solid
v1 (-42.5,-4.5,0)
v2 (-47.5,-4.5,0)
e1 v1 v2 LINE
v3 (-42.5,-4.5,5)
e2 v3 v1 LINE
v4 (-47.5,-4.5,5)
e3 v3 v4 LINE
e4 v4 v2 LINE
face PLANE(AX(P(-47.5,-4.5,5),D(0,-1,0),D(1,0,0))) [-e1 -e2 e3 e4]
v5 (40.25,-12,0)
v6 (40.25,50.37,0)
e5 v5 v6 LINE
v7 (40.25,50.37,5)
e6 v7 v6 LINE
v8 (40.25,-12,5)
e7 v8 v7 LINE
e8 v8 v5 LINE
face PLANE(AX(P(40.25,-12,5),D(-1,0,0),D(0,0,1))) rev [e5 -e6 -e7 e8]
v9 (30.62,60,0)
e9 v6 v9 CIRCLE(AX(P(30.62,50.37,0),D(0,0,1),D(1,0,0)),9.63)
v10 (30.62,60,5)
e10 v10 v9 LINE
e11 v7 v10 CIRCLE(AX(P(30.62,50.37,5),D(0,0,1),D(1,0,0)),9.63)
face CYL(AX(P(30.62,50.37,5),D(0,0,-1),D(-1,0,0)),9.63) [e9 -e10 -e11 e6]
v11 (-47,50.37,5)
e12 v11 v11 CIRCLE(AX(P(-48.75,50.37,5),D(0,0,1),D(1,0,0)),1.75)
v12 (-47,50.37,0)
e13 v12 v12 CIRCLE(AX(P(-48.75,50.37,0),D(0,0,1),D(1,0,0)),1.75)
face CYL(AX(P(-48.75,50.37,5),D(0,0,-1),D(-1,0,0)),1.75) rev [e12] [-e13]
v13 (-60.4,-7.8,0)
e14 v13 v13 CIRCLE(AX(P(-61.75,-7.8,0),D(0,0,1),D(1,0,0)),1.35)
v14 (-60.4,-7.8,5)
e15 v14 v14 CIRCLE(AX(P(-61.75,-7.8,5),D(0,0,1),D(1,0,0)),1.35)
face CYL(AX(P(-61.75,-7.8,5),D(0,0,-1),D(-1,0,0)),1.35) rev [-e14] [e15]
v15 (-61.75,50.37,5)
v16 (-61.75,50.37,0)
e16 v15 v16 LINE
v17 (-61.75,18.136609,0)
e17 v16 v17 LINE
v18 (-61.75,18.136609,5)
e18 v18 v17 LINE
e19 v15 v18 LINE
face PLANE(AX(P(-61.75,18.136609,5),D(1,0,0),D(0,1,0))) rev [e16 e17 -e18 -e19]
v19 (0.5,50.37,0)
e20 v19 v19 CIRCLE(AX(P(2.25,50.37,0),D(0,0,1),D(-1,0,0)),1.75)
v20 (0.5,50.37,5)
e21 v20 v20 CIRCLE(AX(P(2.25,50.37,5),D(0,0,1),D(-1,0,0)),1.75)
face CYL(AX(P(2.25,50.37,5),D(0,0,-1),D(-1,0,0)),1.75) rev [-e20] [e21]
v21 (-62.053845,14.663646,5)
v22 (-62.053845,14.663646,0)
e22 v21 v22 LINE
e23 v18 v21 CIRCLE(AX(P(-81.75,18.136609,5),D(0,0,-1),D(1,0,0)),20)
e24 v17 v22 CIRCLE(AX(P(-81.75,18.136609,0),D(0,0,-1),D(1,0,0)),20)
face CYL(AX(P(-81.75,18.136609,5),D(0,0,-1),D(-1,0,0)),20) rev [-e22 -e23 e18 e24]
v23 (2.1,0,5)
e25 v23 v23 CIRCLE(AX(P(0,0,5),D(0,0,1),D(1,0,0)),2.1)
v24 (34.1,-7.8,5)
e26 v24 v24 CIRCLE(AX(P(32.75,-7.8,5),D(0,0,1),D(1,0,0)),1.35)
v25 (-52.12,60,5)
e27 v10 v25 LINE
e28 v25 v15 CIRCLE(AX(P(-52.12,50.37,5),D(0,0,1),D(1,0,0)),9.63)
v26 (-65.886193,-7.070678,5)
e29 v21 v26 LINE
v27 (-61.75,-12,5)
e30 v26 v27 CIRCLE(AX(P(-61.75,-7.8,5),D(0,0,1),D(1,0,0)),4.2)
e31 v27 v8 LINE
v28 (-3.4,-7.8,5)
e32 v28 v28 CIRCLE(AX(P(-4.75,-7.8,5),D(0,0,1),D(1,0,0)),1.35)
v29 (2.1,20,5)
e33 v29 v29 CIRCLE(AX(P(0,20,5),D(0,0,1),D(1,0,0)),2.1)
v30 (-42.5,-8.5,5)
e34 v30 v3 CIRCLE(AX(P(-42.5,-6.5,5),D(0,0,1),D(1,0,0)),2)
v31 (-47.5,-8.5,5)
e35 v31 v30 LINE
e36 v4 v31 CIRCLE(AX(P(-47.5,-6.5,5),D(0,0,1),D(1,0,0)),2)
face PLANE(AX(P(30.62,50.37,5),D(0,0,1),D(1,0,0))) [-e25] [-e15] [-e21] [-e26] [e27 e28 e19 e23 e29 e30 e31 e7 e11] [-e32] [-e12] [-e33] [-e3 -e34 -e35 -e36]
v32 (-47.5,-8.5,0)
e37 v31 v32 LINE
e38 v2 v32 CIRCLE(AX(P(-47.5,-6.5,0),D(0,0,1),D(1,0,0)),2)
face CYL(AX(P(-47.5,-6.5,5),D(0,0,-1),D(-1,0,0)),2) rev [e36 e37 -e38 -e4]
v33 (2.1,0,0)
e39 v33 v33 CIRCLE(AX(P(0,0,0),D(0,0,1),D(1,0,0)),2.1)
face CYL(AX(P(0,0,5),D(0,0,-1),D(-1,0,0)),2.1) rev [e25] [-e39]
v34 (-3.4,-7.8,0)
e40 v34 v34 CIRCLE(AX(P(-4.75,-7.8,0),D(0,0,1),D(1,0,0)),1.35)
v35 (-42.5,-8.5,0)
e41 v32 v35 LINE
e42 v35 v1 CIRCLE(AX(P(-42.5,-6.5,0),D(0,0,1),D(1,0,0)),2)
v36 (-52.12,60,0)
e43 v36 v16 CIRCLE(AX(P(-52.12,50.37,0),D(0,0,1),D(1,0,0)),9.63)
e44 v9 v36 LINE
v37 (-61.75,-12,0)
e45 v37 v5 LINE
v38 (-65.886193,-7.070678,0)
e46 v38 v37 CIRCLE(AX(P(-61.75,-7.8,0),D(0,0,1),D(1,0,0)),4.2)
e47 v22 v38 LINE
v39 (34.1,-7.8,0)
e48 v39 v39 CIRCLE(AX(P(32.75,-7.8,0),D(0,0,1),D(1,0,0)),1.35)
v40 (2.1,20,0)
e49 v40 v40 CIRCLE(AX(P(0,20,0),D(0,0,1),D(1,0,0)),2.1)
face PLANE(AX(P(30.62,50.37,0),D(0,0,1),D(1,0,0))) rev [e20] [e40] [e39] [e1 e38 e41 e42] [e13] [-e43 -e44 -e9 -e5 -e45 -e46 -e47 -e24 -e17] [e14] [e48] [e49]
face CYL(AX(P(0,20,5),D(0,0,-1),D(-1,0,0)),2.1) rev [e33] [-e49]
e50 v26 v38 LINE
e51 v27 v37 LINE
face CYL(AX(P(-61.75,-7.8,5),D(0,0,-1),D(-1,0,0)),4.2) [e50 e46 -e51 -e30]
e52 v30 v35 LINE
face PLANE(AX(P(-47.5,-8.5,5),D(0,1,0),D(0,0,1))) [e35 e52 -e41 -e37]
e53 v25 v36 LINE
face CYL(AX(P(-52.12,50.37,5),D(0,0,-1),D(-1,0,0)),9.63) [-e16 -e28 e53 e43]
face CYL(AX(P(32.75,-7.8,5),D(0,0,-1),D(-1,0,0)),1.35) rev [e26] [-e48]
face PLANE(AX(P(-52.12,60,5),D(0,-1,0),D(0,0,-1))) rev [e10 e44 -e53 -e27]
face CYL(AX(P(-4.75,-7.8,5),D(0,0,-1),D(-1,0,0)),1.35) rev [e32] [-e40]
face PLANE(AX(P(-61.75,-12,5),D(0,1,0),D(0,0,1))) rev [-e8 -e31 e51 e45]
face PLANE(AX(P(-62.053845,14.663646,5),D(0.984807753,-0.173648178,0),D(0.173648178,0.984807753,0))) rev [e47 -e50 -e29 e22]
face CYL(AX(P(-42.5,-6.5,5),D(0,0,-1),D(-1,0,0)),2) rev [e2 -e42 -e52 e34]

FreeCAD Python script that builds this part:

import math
import FreeCAD as App
import Part
import Sketcher

V = App.Vector
Q = App.Units.Quantity

doc = App.newDocument("Part")
body = doc.addObject("PartDesign::Body", "Body")

# Sketch on XY plane
sketch1 = doc.addObject("Sketcher::SketchObject", "Sketch")
body.addObject(sketch1)
sketch1.AttachmentSupport = (doc.XY_Plane, [""])
sketch1.MapMode = "FlatFace"
sketch1.addGeometry(Part.LineSegment(V(-62.1, 14.7, 0), V(-65.9, -7.1, 0)), False)
sketch1.addGeometry(Part.ArcOfCircle(Part.Circle(V(-61.8, -7.8, 0), V(0, 0, 1), 4.2), math.radians(170), math.radians(270)), False)
sketch1.addGeometry(Part.LineSegment(V(-61.8, -12, 0), V(40.2, -12, 0)), False)
sketch1.addGeometry(Part.LineSegment(V(40.2, -12, 0), V(40.2, 50.4, 0)), False)
sketch1.addGeometry(Part.ArcOfCircle(Part.Circle(V(30.6, 50.4, 0), V(0, 0, 1), 9.6), math.radians(0), math.radians(90)), False)
sketch1.addGeometry(Part.LineSegment(V(30.6, 60, 0), V(-52.1, 60, 0)), False)
sketch1.addGeometry(Part.ArcOfCircle(Part.Circle(V(-52.1, 50.4, 0), V(0, 0, 1), 9.6), math.radians(90), math.radians(180)), False)
sketch1.addGeometry(Part.LineSegment(V(-61.8, 50.4, 0), V(-61.8, 18.1, 0)), False)
sketch1.addGeometry(Part.ArcOfCircle(Part.Circle(V(-81.7, 18.1, 0), V(0, 0, 1), 20), math.radians(-10), math.radians(0)), False)
sketch1.addGeometry(Part.Circle(V(-61.8, -7.8, 0), V(0, 0, 1), 1.4), False)
sketch1.addGeometry(Part.ArcOfCircle(Part.Circle(V(-47.5, -6.5, 0), V(0, 0, 1), 2), math.radians(90), math.radians(270)), False)
sketch1.addGeometry(Part.LineSegment(V(-47.5, -4.5, 0), V(-42.5, -4.5, 0)), False)
sketch1.addGeometry(Part.ArcOfCircle(Part.Circle(V(-42.5, -6.5, 0), V(0, 0, 1), 2), math.radians(-90), math.radians(90)), False)
sketch1.addGeometry(Part.LineSegment(V(-42.5, -8.5, 0), V(-47.5, -8.5, 0)), False)
sketch1.addGeometry(Part.Circle(V(-4.8, -7.8, 0), V(0, 0, 1), 1.4), False)
sketch1.addGeometry(Part.Circle(V(0, 0, 0), V(0, 0, 1), 2.1), False)
sketch1.addGeometry(Part.Circle(V(32.8, -7.8, 0), V(0, 0, 1), 1.4), False)
sketch1.addGeometry(Part.Circle(V(0, 20, 0), V(0, 0, 1), 2.1), False)
sketch1.addGeometry(Part.Circle(V(-48.8, 50.4, 0), V(0, 0, 1), 1.8), False)
sketch1.addGeometry(Part.Circle(V(2.2, 50.4, 0), V(0, 0, 1), 1.8), False)
sketch1.addConstraint(Sketcher.Constraint("Tangent", 0, 2, 1, 1))
sketch1.addConstraint(Sketcher.Constraint("Tangent", 1, 2, 2, 1))
sketch1.addConstraint(Sketcher.Constraint("Coincident", 2, 2, 3, 1))
sketch1.addConstraint(Sketcher.Constraint("Tangent", 3, 2, 4, 1))
sketch1.addConstraint(Sketcher.Constraint("Tangent", 4, 2, 5, 1))
sketch1.addConstraint(Sketcher.Constraint("Tangent", 5, 2, 6, 1))
sketch1.addConstraint(Sketcher.Constraint("Tangent", 6, 2, 7, 1))
sketch1.addConstraint(Sketcher.Constraint("Tangent", 7, 2, 8, 2))
sketch1.addConstraint(Sketcher.Constraint("Tangent", 8, 1, 0, 1))
sketch1.addConstraint(Sketcher.Constraint("Tangent", 10, 1, 11, 1))
sketch1.addConstraint(Sketcher.Constraint("Tangent", 11, 2, 12, 2))
sketch1.addConstraint(Sketcher.Constraint("Tangent", 12, 1, 13, 1))
sketch1.addConstraint(Sketcher.Constraint("Tangent", 13, 2, 10, 2))
sketch1.addConstraint(Sketcher.Constraint("Horizontal", 2))
sketch1.addConstraint(Sketcher.Constraint("Vertical", 3))
sketch1.addConstraint(Sketcher.Constraint("Horizontal", 5))
sketch1.addConstraint(Sketcher.Constraint("Vertical", 7))
sketch1.addConstraint(Sketcher.Constraint("Horizontal", 11))
sketch1.addConstraint(Sketcher.Constraint("Horizontal", 13))
sketch1.addConstraint(Sketcher.Constraint("Coincident", 15, 3, -1, 1))
sketch1.addConstraint(Sketcher.Constraint("Coincident", 9, 3, 1, 3))
sketch1.addConstraint(Sketcher.Constraint("Equal", 4, 6))
sketch1.addConstraint(Sketcher.Constraint("Equal", 9, 14))
sketch1.addConstraint(Sketcher.Constraint("Equal", 14, 16))
sketch1.addConstraint(Sketcher.Constraint("Equal", 15, 17))
sketch1.addConstraint(Sketcher.Constraint("Equal", 18, 19))
sketch1.addConstraint(Sketcher.Constraint("PointOnObject", 17, 3, -2))
sketch1.addConstraint(Sketcher.Constraint("Horizontal", 9, 3, 14, 3))
sketch1.addConstraint(Sketcher.Constraint("Horizontal", 14, 3, 16, 3))
sketch1.addConstraint(Sketcher.Constraint("Horizontal", 6, 3, 18, 3))
sketch1.addConstraint(Sketcher.Constraint("Horizontal", 18, 3, 19, 3))
sketch1.addConstraint(Sketcher.Constraint("Vertical", 1, 2, 6, 2))
sketch1.addConstraint(Sketcher.Constraint("Radius", 8, 20.0))
sketch1.addConstraint(Sketcher.Constraint("Radius", 10, 2.0))
sketch1.addConstraint(Sketcher.Constraint("Diameter", 9, 2.7))
sketch1.addConstraint(Sketcher.Constraint("Diameter", 15, 4.2))
sketch1.addConstraint(Sketcher.Constraint("Diameter", 18, 3.5))
sketch1.addConstraint(Sketcher.Constraint("Radius", 1, 4.2))
sketch1.addConstraint(Sketcher.Constraint("DistanceX", 2, 1, 2, 2, 102.0))
sketch1.addConstraint(Sketcher.Constraint("DistanceX", 11, 1, 11, 2, 5.0))
sketch1.addConstraint(Sketcher.Constraint("Angle", 0, Q("-100 deg")))
sketch1.addConstraint(Sketcher.Constraint("Radius", 4, 9.63))
sketch1.addConstraint(Sketcher.Constraint("DistanceY", -1, 1, 17, 3, 20.0))
sketch1.addConstraint(Sketcher.Constraint("DistanceY", 1, 2, -1, 1, 12.0))
sketch1.addConstraint(Sketcher.Constraint("DistanceY", -1, 1, 4, 2, 60.0))
sketch1.addConstraint(Sketcher.Constraint("DistanceX", 1, 3, 14, 3, 57.0))
sketch1.addConstraint(Sketcher.Constraint("DistanceX", 8, 3, 18, 3, 33.0))
sketch1.addConstraint(Sketcher.Constraint("DistanceX", 18, 3, 19, 3, 51.0))
sketch1.addConstraint(Sketcher.Constraint("DistanceX", 10, 3, -1, 1, 47.5))
sketch1.addConstraint(Sketcher.Constraint("DistanceY", 10, 3, -1, 1, 6.5))
sketch1.addConstraint(Sketcher.Constraint("DistanceX", 14, 3, 16, 3, 37.5))
sketch1.addConstraint(Sketcher.Constraint("DistanceX", 1, 3, -1, 1, 61.75))
pad1 = doc.addObject("PartDesign::Pad", "Pad")
body.addObject(pad1)
pad1.Profile = sketch1
pad1.Length = 5

doc.recompute()
